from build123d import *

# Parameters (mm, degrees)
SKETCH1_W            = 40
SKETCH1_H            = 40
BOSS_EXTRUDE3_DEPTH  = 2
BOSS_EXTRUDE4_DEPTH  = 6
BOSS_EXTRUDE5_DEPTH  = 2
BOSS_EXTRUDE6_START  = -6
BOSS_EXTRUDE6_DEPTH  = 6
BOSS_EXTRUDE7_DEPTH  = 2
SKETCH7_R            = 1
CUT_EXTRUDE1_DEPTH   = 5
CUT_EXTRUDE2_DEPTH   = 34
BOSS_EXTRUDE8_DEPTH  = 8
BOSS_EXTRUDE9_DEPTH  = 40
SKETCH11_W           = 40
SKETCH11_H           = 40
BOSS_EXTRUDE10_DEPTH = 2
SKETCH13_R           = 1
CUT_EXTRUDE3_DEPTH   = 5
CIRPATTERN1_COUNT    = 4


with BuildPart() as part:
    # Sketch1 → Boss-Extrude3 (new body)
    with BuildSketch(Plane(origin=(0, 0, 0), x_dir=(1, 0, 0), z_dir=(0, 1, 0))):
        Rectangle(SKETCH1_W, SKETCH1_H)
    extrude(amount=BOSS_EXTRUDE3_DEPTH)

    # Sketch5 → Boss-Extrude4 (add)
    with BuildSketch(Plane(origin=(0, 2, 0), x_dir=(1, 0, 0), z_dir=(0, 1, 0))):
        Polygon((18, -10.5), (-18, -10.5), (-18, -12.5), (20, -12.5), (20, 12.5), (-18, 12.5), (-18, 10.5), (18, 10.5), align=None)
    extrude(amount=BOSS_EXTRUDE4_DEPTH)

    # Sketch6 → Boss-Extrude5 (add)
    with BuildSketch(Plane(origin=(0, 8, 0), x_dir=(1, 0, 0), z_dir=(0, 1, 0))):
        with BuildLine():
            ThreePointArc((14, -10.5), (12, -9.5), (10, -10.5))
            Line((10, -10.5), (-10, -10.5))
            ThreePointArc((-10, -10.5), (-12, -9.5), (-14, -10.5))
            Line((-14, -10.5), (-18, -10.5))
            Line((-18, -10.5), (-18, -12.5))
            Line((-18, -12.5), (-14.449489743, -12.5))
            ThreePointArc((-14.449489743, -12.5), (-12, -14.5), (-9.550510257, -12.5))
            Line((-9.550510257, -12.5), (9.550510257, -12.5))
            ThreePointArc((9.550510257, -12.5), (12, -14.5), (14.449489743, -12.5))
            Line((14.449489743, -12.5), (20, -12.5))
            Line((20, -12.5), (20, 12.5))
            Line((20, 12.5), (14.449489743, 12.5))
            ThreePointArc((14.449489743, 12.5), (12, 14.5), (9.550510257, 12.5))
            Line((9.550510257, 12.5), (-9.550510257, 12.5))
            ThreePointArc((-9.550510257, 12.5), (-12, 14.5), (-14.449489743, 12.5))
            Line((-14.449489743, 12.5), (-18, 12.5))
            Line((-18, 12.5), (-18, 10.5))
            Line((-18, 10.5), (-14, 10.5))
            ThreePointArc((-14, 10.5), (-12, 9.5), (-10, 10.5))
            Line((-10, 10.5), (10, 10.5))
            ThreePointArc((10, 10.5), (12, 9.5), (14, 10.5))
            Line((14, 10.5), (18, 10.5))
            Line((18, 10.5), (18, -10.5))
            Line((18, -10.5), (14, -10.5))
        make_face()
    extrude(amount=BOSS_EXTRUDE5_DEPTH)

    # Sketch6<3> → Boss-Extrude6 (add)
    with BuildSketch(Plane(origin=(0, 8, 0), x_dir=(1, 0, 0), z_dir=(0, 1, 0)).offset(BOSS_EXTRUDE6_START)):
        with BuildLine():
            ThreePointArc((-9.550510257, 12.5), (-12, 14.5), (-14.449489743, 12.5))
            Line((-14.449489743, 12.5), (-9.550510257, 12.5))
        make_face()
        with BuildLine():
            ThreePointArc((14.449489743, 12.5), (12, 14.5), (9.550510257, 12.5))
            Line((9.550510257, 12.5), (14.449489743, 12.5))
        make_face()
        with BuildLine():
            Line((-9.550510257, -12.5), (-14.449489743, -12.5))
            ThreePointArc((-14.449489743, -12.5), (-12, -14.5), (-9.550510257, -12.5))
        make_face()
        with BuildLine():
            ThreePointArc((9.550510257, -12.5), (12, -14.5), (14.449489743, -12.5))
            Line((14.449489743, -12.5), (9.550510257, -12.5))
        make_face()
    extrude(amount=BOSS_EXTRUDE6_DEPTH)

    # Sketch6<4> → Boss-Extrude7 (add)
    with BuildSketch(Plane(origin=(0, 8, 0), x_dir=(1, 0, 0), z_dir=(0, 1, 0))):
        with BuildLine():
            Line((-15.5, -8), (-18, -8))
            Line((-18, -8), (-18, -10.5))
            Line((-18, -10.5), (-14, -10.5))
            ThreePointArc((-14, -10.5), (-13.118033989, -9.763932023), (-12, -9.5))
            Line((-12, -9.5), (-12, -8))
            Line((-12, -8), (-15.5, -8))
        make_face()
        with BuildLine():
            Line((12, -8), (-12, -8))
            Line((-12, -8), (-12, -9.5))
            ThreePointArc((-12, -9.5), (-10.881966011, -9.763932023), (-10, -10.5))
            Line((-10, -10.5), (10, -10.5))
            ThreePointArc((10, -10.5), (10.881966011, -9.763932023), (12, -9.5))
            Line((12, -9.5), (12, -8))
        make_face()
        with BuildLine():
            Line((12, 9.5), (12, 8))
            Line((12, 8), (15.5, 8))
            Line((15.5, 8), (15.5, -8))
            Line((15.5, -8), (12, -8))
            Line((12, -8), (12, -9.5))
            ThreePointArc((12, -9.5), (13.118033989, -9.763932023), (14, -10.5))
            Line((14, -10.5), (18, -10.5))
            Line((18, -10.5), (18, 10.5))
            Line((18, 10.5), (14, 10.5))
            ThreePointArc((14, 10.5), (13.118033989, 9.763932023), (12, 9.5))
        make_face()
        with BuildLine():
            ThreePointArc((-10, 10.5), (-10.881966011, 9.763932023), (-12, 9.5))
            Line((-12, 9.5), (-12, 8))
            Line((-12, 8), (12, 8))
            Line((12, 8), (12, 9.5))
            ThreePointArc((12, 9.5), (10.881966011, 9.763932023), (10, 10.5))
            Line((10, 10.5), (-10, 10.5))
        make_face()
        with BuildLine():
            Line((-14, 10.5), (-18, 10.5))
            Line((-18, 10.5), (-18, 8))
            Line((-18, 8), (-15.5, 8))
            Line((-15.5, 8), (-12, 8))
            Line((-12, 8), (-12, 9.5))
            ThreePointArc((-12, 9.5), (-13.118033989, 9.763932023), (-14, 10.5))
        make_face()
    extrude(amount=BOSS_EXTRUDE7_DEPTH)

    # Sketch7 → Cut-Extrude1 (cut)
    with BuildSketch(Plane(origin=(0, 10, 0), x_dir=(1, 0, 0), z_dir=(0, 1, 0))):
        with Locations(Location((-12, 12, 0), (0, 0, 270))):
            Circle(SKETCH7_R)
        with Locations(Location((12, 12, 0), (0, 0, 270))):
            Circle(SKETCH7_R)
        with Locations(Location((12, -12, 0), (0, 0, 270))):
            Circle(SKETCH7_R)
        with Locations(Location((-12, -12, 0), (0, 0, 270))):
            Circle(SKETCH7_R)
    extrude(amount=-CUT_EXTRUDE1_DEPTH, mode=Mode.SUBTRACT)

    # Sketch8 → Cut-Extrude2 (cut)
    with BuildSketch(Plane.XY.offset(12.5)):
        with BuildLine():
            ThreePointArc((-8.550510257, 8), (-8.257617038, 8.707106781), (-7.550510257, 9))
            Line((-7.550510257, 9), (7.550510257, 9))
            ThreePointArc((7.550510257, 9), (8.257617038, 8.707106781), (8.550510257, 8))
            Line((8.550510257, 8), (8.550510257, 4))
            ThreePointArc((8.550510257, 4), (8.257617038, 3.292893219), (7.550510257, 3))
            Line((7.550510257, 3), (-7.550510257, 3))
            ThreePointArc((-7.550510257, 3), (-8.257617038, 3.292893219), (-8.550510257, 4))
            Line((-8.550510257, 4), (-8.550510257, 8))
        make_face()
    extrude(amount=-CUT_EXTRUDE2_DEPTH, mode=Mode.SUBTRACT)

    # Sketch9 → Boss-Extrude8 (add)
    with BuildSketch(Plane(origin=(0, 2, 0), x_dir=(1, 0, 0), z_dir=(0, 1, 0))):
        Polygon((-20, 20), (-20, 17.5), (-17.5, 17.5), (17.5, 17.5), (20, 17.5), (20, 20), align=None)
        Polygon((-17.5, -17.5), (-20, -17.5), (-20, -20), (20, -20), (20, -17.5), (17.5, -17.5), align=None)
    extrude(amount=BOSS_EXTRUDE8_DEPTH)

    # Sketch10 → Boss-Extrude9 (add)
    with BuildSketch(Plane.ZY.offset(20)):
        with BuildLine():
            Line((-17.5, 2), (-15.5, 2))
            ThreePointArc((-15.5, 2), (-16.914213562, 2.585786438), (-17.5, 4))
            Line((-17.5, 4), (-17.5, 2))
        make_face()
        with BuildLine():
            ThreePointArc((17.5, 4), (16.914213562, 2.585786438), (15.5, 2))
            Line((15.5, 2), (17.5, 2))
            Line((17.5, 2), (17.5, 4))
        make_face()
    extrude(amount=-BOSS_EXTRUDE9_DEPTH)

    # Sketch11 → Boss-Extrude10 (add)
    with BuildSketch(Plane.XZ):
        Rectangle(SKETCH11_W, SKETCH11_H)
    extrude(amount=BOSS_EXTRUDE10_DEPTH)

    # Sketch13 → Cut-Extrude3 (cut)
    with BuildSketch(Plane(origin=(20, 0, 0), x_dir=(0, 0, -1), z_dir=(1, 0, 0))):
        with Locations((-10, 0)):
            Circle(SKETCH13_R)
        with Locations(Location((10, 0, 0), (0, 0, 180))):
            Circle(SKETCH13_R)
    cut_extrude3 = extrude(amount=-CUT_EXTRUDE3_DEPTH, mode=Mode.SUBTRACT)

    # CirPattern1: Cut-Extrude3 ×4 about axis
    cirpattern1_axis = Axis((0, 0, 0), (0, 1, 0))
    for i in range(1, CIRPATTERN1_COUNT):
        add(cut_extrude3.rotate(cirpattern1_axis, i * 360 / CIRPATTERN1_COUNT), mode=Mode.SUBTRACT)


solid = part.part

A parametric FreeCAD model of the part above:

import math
import FreeCAD as App
import Part
import Sketcher
Q = App.Units.Quantity

doc = App.newDocument("Part")
body = doc.addObject("PartDesign::Body", "Body")

# Sketch on XZ plane
sketch1 = body.newObject("Sketcher::SketchObject", "Sketch")
sketch1.AttachmentSupport = (doc.getObject("XZ_Plane"), [""])
sketch1.MapMode = "FlatFace"
sketch1.addGeometry([
    Part.LineSegment(App.Vector(-20, -20, 0), App.Vector(-20, 20, 0)),
    Part.LineSegment(App.Vector(-20, 20, 0), App.Vector(20, 20, 0)),
    Part.LineSegment(App.Vector(20, 20, 0), App.Vector(20, -20, 0)),
    Part.LineSegment(App.Vector(20, -20, 0), App.Vector(-20, -20, 0)),
], False)
sketch1.addConstraint([
    Sketcher.Constraint("Coincident", 0, 2, 1, 1),
    Sketcher.Constraint("Coincident", 1, 2, 2, 1),
    Sketcher.Constraint("Coincident", 2, 2, 3, 1),
    Sketcher.Constraint("Coincident", 3, 2, 0, 1),
    Sketcher.Constraint("Vertical", 0),
    Sketcher.Constraint("Horizontal", 1),
    Sketcher.Constraint("Vertical", 2),
    Sketcher.Constraint("Horizontal", 3),
    Sketcher.Constraint("Symmetric", 0, 2, 2, 2, -1, 1),
    Sketcher.Constraint("Equal", 3, 0),
    Sketcher.Constraint("DistanceX", 1, 1, 1, 2, Q("40 mm")),
])
pad1 = body.newObject("PartDesign::Pad", "Pad")
pad1.Profile = sketch1
pad1.Length = 2
pad1.Reversed = True

# Sketch on XZ plane
sketch2 = body.newObject("Sketcher::SketchObject", "Sketch001")
sketch2.AttachmentSupport = (doc.getObject("XZ_Plane"), [""])
sketch2.MapMode = "FlatFace"
sketch2.AttachmentOffset = App.Placement(App.Vector(0, 0, -2), App.Rotation())
sketch2.addGeometry([
    Part.LineSegment(App.Vector(18, 10.5, 0), App.Vector(-18, 10.5, 0)),  # 0
    Part.LineSegment(App.Vector(-18, 10.5, 0), App.Vector(-18, 12.5, 0)),  # 1
    Part.LineSegment(App.Vector(-18, 12.5, 0), App.Vector(20, 12.5, 0)),  # 2
    Part.LineSegment(App.Vector(20, 12.5, 0), App.Vector(20, -12.5, 0)),  # 3
    Part.LineSegment(App.Vector(20, -12.5, 0), App.Vector(-18, -12.5, 0)),  # 4
    Part.LineSegment(App.Vector(-18, -12.5, 0), App.Vector(-18, -10.5, 0)),  # 5
    Part.LineSegment(App.Vector(-18, -10.5, 0), App.Vector(18, -10.5, 0)),  # 6
    Part.LineSegment(App.Vector(18, -10.5, 0), App.Vector(18, 10.5, 0)),  # 7
], False)
sketch2.addConstraint([
    Sketcher.Constraint("Coincident", 0, 2, 1, 1),
    Sketcher.Constraint("Coincident", 1, 2, 2, 1),
    Sketcher.Constraint("Coincident", 2, 2, 3, 1),
    Sketcher.Constraint("Coincident", 3, 2, 4, 1),
    Sketcher.Constraint("Coincident", 4, 2, 5, 1),
    Sketcher.Constraint("Coincident", 5, 2, 6, 1),
    Sketcher.Constraint("Coincident", 6, 2, 7, 1),
    Sketcher.Constraint("Coincident", 7, 2, 0, 1),
    Sketcher.Constraint("Horizontal", 0),
    Sketcher.Constraint("Vertical", 1),
    Sketcher.Constraint("Horizontal", 2),
    Sketcher.Constraint("Vertical", 3),
    Sketcher.Constraint("Horizontal", 4),
    Sketcher.Constraint("Vertical", 5),
    Sketcher.Constraint("Horizontal", 6),
    Sketcher.Constraint("Vertical", 7),
    Sketcher.Constraint("Symmetric", 0, 2, 6, 2, -1, 1),
    Sketcher.Constraint("Symmetric", 1, 2, 4, 2, -1),
    Sketcher.Constraint("DistanceX", 0, 2, 0, 1, Q("36 mm")),
    Sketcher.Constraint("DistanceX", 2, 1, 2, 2, Q("38 mm")),
    Sketcher.Constraint("DistanceY", 1, 1, 1, 2, Q("2 mm")),
    Sketcher.Constraint("DistanceY", 3, 2, 3, 1, Q("25 mm")),
])
pad2 = body.newObject("PartDesign::Pad", "Pad001")
pad2.Profile = sketch2
pad2.Length = 6
pad2.Reversed = True

# Sketch on XZ plane
sketch3 = body.newObject("Sketcher::SketchObject", "Sketch002")
sketch3.AttachmentSupport = (doc.getObject("XZ_Plane"), [""])
sketch3.MapMode = "FlatFace"
sketch3.AttachmentOffset = App.Placement(App.Vector(0, 0, -8), App.Rotation())
sketch3.addGeometry([
    Part.ArcOfCircle(Part.Circle(App.Vector(12, 12, 0), App.Vector(0, 0, 1), 2.5), math.radians(-143.130102), math.radians(-36.869898)),  # 0
    Part.LineSegment(App.Vector(10, 10.5, 0), App.Vector(-10, 10.5, 0)),  # 1
    Part.ArcOfCircle(Part.Circle(App.Vector(-12, 12, 0), App.Vector(0, 0, 1), 2.5), math.radians(-143.130102), math.radians(-36.869898)),  # 2
    Part.LineSegment(App.Vector(-14, 10.5, 0), App.Vector(-18, 10.5, 0)),  # 3
    Part.LineSegment(App.Vector(-18, 10.5, 0), App.Vector(-18, 12.5, 0)),  # 4
    Part.LineSegment(App.Vector(-18, 12.5, 0), App.Vector(-14.44949, 12.5, 0)),  # 5
    Part.ArcOfCircle(Part.Circle(App.Vector(-12, 12, 0), App.Vector(0, 0, 1), 2.5), math.radians(11.536959), math.radians(168.463041)),  # 6
    Part.LineSegment(App.Vector(-9.55051, 12.5, 0), App.Vector(9.55051, 12.5, 0)),  # 7
    Part.ArcOfCircle(Part.Circle(App.Vector(12, 12, 0), App.Vector(0, 0, 1), 2.5), math.radians(11.536959), math.radians(168.463041)),  # 8
    Part.LineSegment(App.Vector(14.44949, 12.5, 0), App.Vector(20, 12.5, 0)),  # 9
    Part.LineSegment(App.Vector(20, 12.5, 0), App.Vector(20, -12.5, 0)),  # 10
    Part.LineSegment(App.Vector(20, -12.5, 0), App.Vector(14.44949, -12.5, 0)),  # 11
    Part.ArcOfCircle(Part.Circle(App.Vector(12, -12, 0), App.Vector(0, 0, 1), 2.5), math.radians(-168.463041), math.radians(-11.536959)),  # 12
    Part.LineSegment(App.Vector(9.55051, -12.5, 0), App.Vector(-9.55051, -12.5, 0)),  # 13
    Part.ArcOfCircle(Part.Circle(App.Vector(-12, -12, 0), App.Vector(0, 0, 1), 2.5), math.radians(-168.463041), math.radians(-11.536959)),  # 14
    Part.LineSegment(App.Vector(-14.44949, -12.5, 0), App.Vector(-18, -12.5, 0)),  # 15
    Part.LineSegment(App.Vector(-18, -12.5, 0), App.Vector(-18, -10.5, 0)),  # 16
    Part.LineSegment(App.Vector(-18, -10.5, 0), App.Vector(-14, -10.5, 0)),  # 17
    Part.ArcOfCircle(Part.Circle(App.Vector(-12, -12, 0), App.Vector(0, 0, 1), 2.5), math.radians(36.869898), math.radians(143.130102)),  # 18
    Part.LineSegment(App.Vector(-10, -10.5, 0), App.Vector(10, -10.5, 0)),  # 19
    Part.ArcOfCircle(Part.Circle(App.Vector(12, -12, 0), App.Vector(0, 0, 1), 2.5), math.radians(36.869898), math.radians(143.130102)),  # 20
    Part.LineSegment(App.Vector(14, -10.5, 0), App.Vector(18, -10.5, 0)),  # 21
    Part.LineSegment(App.Vector(18, -10.5, 0), App.Vector(18, 10.5, 0)),  # 22
    Part.LineSegment(App.Vector(18, 10.5, 0), App.Vector(14, 10.5, 0)),  # 23
], False)
sketch3.addConstraint([
    Sketcher.Constraint("Coincident", 0, 1, 1, 1),
    Sketcher.Constraint("Coincident", 1, 2, 2, 2),
    Sketcher.Constraint("Coincident", 2, 1, 3, 1),
    Sketcher.Constraint("Coincident", 3, 2, 4, 1),
    Sketcher.Constraint("Coincident", 4, 2, 5, 1),
    Sketcher.Constraint("Coincident", 5, 2, 6, 2),
    Sketcher.Constraint("Coincident", 6, 1, 7, 1),
    Sketcher.Constraint("Coincident", 7, 2, 8, 2),
    Sketcher.Constraint("Coincident", 8, 1, 9, 1),
    Sketcher.Constraint("Coincident", 9, 2, 10, 1),
    Sketcher.Constraint("Coincident", 10, 2, 11, 1),
    Sketcher.Constraint("Coincident", 11, 2, 12, 2),
    Sketcher.Constraint("Coincident", 12, 1, 13, 1),
    Sketcher.Constraint("Coincident", 13, 2, 14, 2),
    Sketcher.Constraint("Coincident", 14, 1, 15, 1),
    Sketcher.Constraint("Coincident", 15, 2, 16, 1),
    Sketcher.Constraint("Coincident", 16, 2, 17, 1),
    Sketcher.Constraint("Coincident", 17, 2, 18, 2),
    Sketcher.Constraint("Coincident", 18, 1, 19, 1),
    Sketcher.Constraint("Coincident", 19, 2, 20, 2),
    Sketcher.Constraint("Coincident", 20, 1, 21, 1),
    Sketcher.Constraint("Coincident", 21, 2, 22, 1),
    Sketcher.Constraint("Coincident", 22, 2, 23, 1),
    Sketcher.Constraint("Coincident", 23, 2, 0, 2),
    Sketcher.Constraint("Horizontal", 1),
    Sketcher.Constraint("Horizontal", 3),
    Sketcher.Constraint("Vertical", 4),
    Sketcher.Constraint("Horizontal", 5),
    Sketcher.Constraint("Horizontal", 7),
    Sketcher.Constraint("Horizontal", 9),
    Sketcher.Constraint("Vertical", 10),
    Sketcher.Constraint("Horizontal", 11),
    Sketcher.Constraint("Horizontal", 13),
    Sketcher.Constraint("Horizontal", 15),
    Sketcher.Constraint("Vertical", 16),
    Sketcher.Constraint("Horizontal", 17),
    Sketcher.Constraint("Horizontal", 19),
    Sketcher.Constraint("Horizontal", 21),
    Sketcher.Constraint("Vertical", 22),
    Sketcher.Constraint("Horizontal", 23),
    Sketcher.Constraint("Coincident", 6, 3, 2, 3),
    Sketcher.Constraint("Coincident", 8, 3, 0, 3),
    Sketcher.Constraint("Coincident", 18, 3, 14, 3),
    Sketcher.Constraint("Coincident", 20, 3, 12, 3),
    Sketcher.Constraint("Equal", 0, 2),
    Sketcher.Constraint("Equal", 2, 6),
    Sketcher.Constraint("Equal", 6, 8),
    Sketcher.Constraint("Equal", 8, 12),
    Sketcher.Constraint("Equal", 12, 14),
    Sketcher.Constraint("Equal", 14, 18),
    Sketcher.Constraint("Equal", 18, 20),
    Sketcher.Constraint("Symmetric", 2, 3, 12, 3, -1, 1),
    Sketcher.Constraint("Symmetric", 0, 3, 14, 3, -1, 1),
    Sketcher.Constraint("Symmetric", 3, 2, 21, 2, -1, 1),
    Sketcher.Constraint("Symmetric", 16, 2, 22, 2, -1, 1),
    Sketcher.Constraint("Symmetric", 0, 3, 2, 3, -2),
    Sketcher.Constraint("Horizontal", 1, 2, 2, 1),
    Sketcher.Constraint("Horizontal", 5, 2, 6, 1),
    Sketcher.Constraint("Horizontal", 7, 2, 8, 1),
    Sketcher.Constraint("Horizontal", 11, 2, 12, 1),
    Sketcher.Constraint("Horizontal", 13, 2, 14, 1),
    Sketcher.Constraint("Horizontal", 17, 2, 18, 1),
    Sketcher.Constraint("Horizontal", 19, 2, 20, 1),
    Sketcher.Constraint("Vertical", 8, 1, 11, 2),
    Sketcher.Constraint("Radius", 0, Q("2.5 mm")),
    Sketcher.Constraint("DistanceX", 1, 2, 1, 1, Q("20 mm")),
    Sketcher.Constraint("DistanceX", 3, 2, 3, 1, Q("4 mm")),
    Sketcher.Constraint("DistanceY", 4, 1, 4, 2, Q("2 mm")),
    Sketcher.Constraint("DistanceY", 10, 2, 10, 1, Q("25 mm")),
    Sketcher.Constraint("DistanceX", -1, 1, 0, 3, Q("12 mm")),
    Sketcher.Constraint("DistanceX", -1, 1, 9, 2, Q("20 mm")),
])
pad3 = body.newObject("PartDesign::Pad", "Pad002")
pad3.Profile = sketch3
pad3.Length = 2
pad3.Reversed = True

# Sketch on XZ plane
sketch4 = body.newObject("Sketcher::SketchObject", "Sketch003")
sketch4.AttachmentSupport = (doc.getObject("XZ_Plane"), [""])
sketch4.MapMode = "FlatFace"
sketch4.AttachmentOffset = App.Placement(App.Vector(0, 0, -2), App.Rotation())
sketch4.addGeometry([
    Part.ArcOfCircle(Part.Circle(App.Vector(-12, -12, 0), App.Vector(0, 0, 1), 2.5), math.radians(-168.463041), math.radians(-11.536959)),  # 0
    Part.LineSegment(App.Vector(-14.44949, -12.5, 0), App.Vector(-9.55051, -12.5, 0)),  # 1
    Part.ArcOfCircle(Part.Circle(App.Vector(12, -12, 0), App.Vector(0, 0, 1), 2.5), math.radians(-168.463041), math.radians(-11.536959)),  # 2
    Part.LineSegment(App.Vector(9.55051, -12.5, 0), App.Vector(14.44949, -12.5, 0)),  # 3
    Part.LineSegment(App.Vector(-9.55051, 12.5, 0), App.Vector(-14.44949, 12.5, 0)),  # 4
    Part.ArcOfCircle(Part.Circle(App.Vector(-12, 12, 0), App.Vector(0, 0, 1), 2.5), math.radians(11.536959), math.radians(168.463041)),  # 5
    Part.ArcOfCircle(Part.Circle(App.Vector(12, 12, 0), App.Vector(0, 0, 1), 2.5), math.radians(11.536959), math.radians(168.463041)),  # 6
    Part.LineSegment(App.Vector(14.44949, 12.5, 0), App.Vector(9.55051, 12.5, 0)),  # 7
], False)
sketch4.addConstraint([
    Sketcher.Constraint("Coincident", 0, 1, 1, 1),
    Sketcher.Constraint("Coincident", 1, 2, 0, 2),
    Sketcher.Constraint("Coincident", 2, 1, 3, 1),
    Sketcher.Constraint("Coincident", 3, 2, 2, 2),
    Sketcher.Constraint("Coincident", 4, 1, 5, 1),
    Sketcher.Constraint("Coincident", 5, 2, 4, 2),
    Sketcher.Constraint("Coincident", 6, 1, 7, 1),
    Sketcher.Constraint("Coincident", 7, 2, 6, 2),
    Sketcher.Constraint("Horizontal", 1),
    Sketcher.Constraint("Horizontal", 3),
    Sketcher.Constraint("Horizontal", 4),
    Sketcher.Constraint("Horizontal", 7),
    Sketcher.Constraint("Equal", 0, 2),
    Sketcher.Constraint("Equal", 2, 5),
    Sketcher.Constraint("Equal", 5, 6),
    Sketcher.Constraint("Symmetric", 2, 3, 5, 3, -1, 1),
    Sketcher.Constraint("Symmetric", 0, 3, 6, 3, -1, 1),
    Sketcher.Constraint("Symmetric", 0, 3, 2, 3, -2),
    Sketcher.Constraint("Horizontal", 1, 2, 2, 1),
    Sketcher.Constraint("Horizontal", 5, 2, 6, 1),
    Sketcher.Constraint("Vertical", 1, 2, 4, 1),
    Sketcher.Constraint("Radius", 0, Q("2.5 mm")),
    Sketcher.Constraint("DistanceX", 0, 3, -1, 1, Q("12 mm")),
    Sketcher.Constraint("DistanceY", 0, 3, -1, 1, Q("12 mm")),
    Sketcher.Constraint("DistanceY", 1, 2, 4, 1, Q("25 mm")),
])
pad4 = body.newObject("PartDesign::Pad", "Pad003")
pad4.Profile = sketch4
pad4.Length = 6
pad4.Reversed = True

# Sketch on XZ plane
sketch5 = body.newObject("Sketcher::SketchObject", "Sketch004")
sketch5.AttachmentSupport = (doc.getObject("XZ_Plane"), [""])
sketch5.MapMode = "FlatFace"
sketch5.AttachmentOffset = App.Placement(App.Vector(0, 0, -8), App.Rotation())
sketch5.addGeometry([
    Part.LineSegment(App.Vector(-18, 8, 0), App.Vector(-18, 10.5, 0)),  # 0
    Part.LineSegment(App.Vector(-18, 10.5, 0), App.Vector(-14, 10.5, 0)),  # 1
    Part.ArcOfCircle(Part.Circle(App.Vector(-12, 12, 0), App.Vector(0, 0, 1), 2.5), math.radians(-143.130102), math.radians(-90)),  # 2
    Part.ArcOfCircle(Part.Circle(App.Vector(-12, 12, 0), App.Vector(0, 0, 1), 2.5), math.radians(-90), math.radians(-36.869898)),  # 3
    Part.LineSegment(App.Vector(-10, 10.5, 0), App.Vector(10, 10.5, 0)),  # 4
    Part.ArcOfCircle(Part.Circle(App.Vector(12, 12, 0), App.Vector(0, 0, 1), 2.5), math.radians(-143.130102), math.radians(-90)),  # 5
    Part.ArcOfCircle(Part.Circle(App.Vector(12, 12, 0), App.Vector(0, 0, 1), 2.5), math.radians(-90), math.radians(-36.869898)),  # 6
    Part.LineSegment(App.Vector(14, 10.5, 0), App.Vector(18, 10.5, 0)),  # 7
    Part.LineSegment(App.Vector(18, 10.5, 0), App.Vector(18, -10.5, 0)),  # 8
    Part.LineSegment(App.Vector(18, -10.5, 0), App.Vector(14, -10.5, 0)),  # 9
    Part.ArcOfCircle(Part.Circle(App.Vector(12, -12, 0), App.Vector(0, 0, 1), 2.5), math.radians(36.869898), math.radians(90)),  # 10
    Part.ArcOfCircle(Part.Circle(App.Vector(12, -12, 0), App.Vector(0, 0, 1), 2.5), math.radians(90), math.radians(143.130102)),  # 11
    Part.LineSegment(App.Vector(10, -10.5, 0), App.Vector(-10, -10.5, 0)),  # 12
    Part.ArcOfCircle(Part.Circle(App.Vector(-12, -12, 0), App.Vector(0, 0, 1), 2.5), math.radians(36.869898), math.radians(90)),  # 13
    Part.ArcOfCircle(Part.Circle(App.Vector(-12, -12, 0), App.Vector(0, 0, 1), 2.5), math.radians(90), math.radians(143.130102)),  # 14
    Part.LineSegment(App.Vector(-14, -10.5, 0), App.Vector(-18, -10.5, 0)),  # 15
    Part.LineSegment(App.Vector(-18, -10.5, 0), App.Vector(-18, -8, 0)),  # 16
    Part.LineSegment(App.Vector(-18, -8, 0), App.Vector(15.5, -8, 0)),  # 17
    Part.LineSegment(App.Vector(15.5, -8, 0), App.Vector(15.5, 8, 0)),  # 18
    Part.LineSegment(App.Vector(15.5, 8, 0), App.Vector(-18, 8, 0)),  # 19
], False)
sketch5.addConstraint([
    Sketcher.Constraint("Coincident", 0, 2, 1, 1),
    Sketcher.Constraint("Coincident", 1, 2, 2, 1),
    Sketcher.Constraint("Tangent", 2, 2, 3, 1),
    Sketcher.Constraint("Coincident", 3, 2, 4, 1),
    Sketcher.Constraint("Coincident", 4, 2, 5, 1),
    Sketcher.Constraint("Tangent", 5, 2, 6, 1),
    Sketcher.Constraint("Coincident", 6, 2, 7, 1),
    Sketcher.Constraint("Coincident", 7, 2, 8, 1),
    Sketcher.Constraint("Coincident", 8, 2, 9, 1),
    Sketcher.Constraint("Coincident", 9, 2, 10, 1),
    Sketcher.Constraint("Tangent", 10, 2, 11, 1),
    Sketcher.Constraint("Coincident", 11, 2, 12, 1),
    Sketcher.Constraint("Coincident", 12, 2, 13, 1),
    Sketcher.Constraint("Tangent", 13, 2, 14, 1),
    Sketcher.Constraint("Coincident", 14, 2, 15, 1),
    Sketcher.Constraint("Coincident", 15, 2, 16, 1),
    Sketcher.Constraint("Coincident", 16, 2, 17, 1),
    Sketcher.Constraint("Coincident", 17, 2, 18, 1),
    Sketcher.Constraint("Coincident", 18, 2, 19, 1),
    Sketcher.Constraint("Coincident", 19, 2, 0, 1),
    Sketcher.Constraint("Vertical", 0),
    Sketcher.Constraint("Horizontal", 1),
    Sketcher.Constraint("Horizontal", 4),
    Sketcher.Constraint("Horizontal", 7),
    Sketcher.Constraint("Vertical", 8),
    Sketcher.Constraint("Horizontal", 9),
    Sketcher.Constraint("Horizontal", 12),
    Sketcher.Constraint("Horizontal", 15),
    Sketcher.Constraint("Vertical", 16),
    Sketcher.Constraint("Horizontal", 17),
    Sketcher.Constraint("Vertical", 18),
    Sketcher.Constraint("Horizontal", 19),
    Sketcher.Constraint("Equal", 2, 3),
    Sketcher.Constraint("Equal", 3, 5),
    Sketcher.Constraint("Equal", 5, 6),
    Sketcher.Constraint("Equal", 6, 10),
    Sketcher.Constraint("Equal", 10, 11),
    Sketcher.Constraint("Equal", 11, 13),
    Sketcher.Constraint("Equal", 13, 14),
    Sketcher.Constraint("Symmetric", 2, 3, 10, 3, -1, 1),
    Sketcher.Constraint("Symmetric", 5, 3, 13, 3, -1, 1),
    Sketcher.Constraint("Symmetric", 0, 2, 8, 2, -1, 1),
    Sketcher.Constraint("Symmetric", 7, 2, 15, 2, -1, 1),
    Sketcher.Constraint("Symmetric", 2, 3, 5, 3, -2),
    Sketcher.Constraint("Horizontal", 1, 2, 3, 2),
    Sketcher.Constraint("Horizontal", 4, 2, 6, 2),
    Sketcher.Constraint("Horizontal", 9, 2, 11, 2),
    Sketcher.Constraint("Vertical", 14, 3, 2, 2),
    Sketcher.Constraint("Vertical", 11, 3, 5, 2),
    Sketcher.Constraint("Vertical", 5, 2, 10, 2),
    Sketcher.Constraint("Vertical", 2, 2, 13, 2),
    Sketcher.Constraint("Equal", 0, 16),
    Sketcher.Constraint("Radius", 2, Q("2.5 mm")),
    Sketcher.Constraint("DistanceX", 1, 1, 1, 2, Q("4 mm")),
    Sketcher.Constraint("DistanceX", 4, 1, 4, 2, Q("20 mm")),
    Sketcher.Constraint("DistanceY", 8, 2, 8, 1, Q("21 mm")),
    Sketcher.Constraint("DistanceY", 18, 1, 18, 2, Q("16 mm")),
    Sketcher.Constraint("DistanceX", 17, 1, 17, 2, Q("33.5 mm")),
    Sketcher.Constraint("DistanceX", 2, 3, -1, 1, Q("12 mm")),
])
pad5 = body.newObject("PartDesign::Pad", "Pad004")
pad5.Profile = sketch5
pad5.Length = 2
pad5.Reversed = True

# Sketch on XZ plane
sketch6 = body.newObject("Sketcher::SketchObject", "Sketch005")
sketch6.AttachmentSupport = (doc.getObject("XZ_Plane"), [""])
sketch6.MapMode = "FlatFace"
sketch6.AttachmentOffset = App.Placement(App.Vector(0, 0, -10), App.Rotation())
sketch6.addGeometry([
    Part.Circle(App.Vector(-12, -12, 0), App.Vector(0, 0, 1), 1),
    Part.Circle(App.Vector(12, -12, 0), App.Vector(0, 0, 1), 1),
    Part.Circle(App.Vector(12, 12, 0), App.Vector(0, 0, 1), 1),
    Part.Circle(App.Vector(-12, 12, 0), App.Vector(0, 0, 1), 1),
], False)
sketch6.addConstraint([
    Sketcher.Constraint("Equal", 0, 1),
    Sketcher.Constraint("Equal", 1, 2),
    Sketcher.Constraint("Equal", 2, 3),
    Sketcher.Constraint("Symmetric", 0, 3, 2, 3, -1, 1),
    Sketcher.Constraint("Symmetric", 1, 3, 3, 3, -1, 1),
    Sketcher.Constraint("Symmetric", 0, 3, 1, 3, -2),
    Sketcher.Constraint("Diameter", 0, Q("2 mm")),
    Sketcher.Constraint("DistanceX", 0, 3, -1, 1, Q("12 mm")),
    Sketcher.Constraint("DistanceY", 0, 3, -1, 1, Q("12 mm")),
])
pocket1 = body.newObject("PartDesign::Pocket", "Pocket")
pocket1.Profile = sketch6
pocket1.Length = 5
pocket1.Reversed = True

# Sketch on XY plane
sketch7 = body.newObject("Sketcher::SketchObject", "Sketch006")
sketch7.AttachmentSupport = (doc.getObject("XY_Plane"), [""])
sketch7.MapMode = "FlatFace"
sketch7.AttachmentOffset = App.Placement(App.Vector(0, 0, 12.5), App.Rotation())
sketch7.addGeometry([
    Part.ArcOfCircle(Part.Circle(App.Vector(-7.55051, 8, 0), App.Vector(0, 0, 1), 1), math.radians(90), math.radians(180)),  # 0
    Part.LineSegment(App.Vector(-8.55051, 8, 0), App.Vector(-8.55051, 4, 0)),  # 1
    Part.ArcOfCircle(Part.Circle(App.Vector(-7.55051, 4, 0), App.Vector(0, 0, 1), 1), math.radians(-180), math.radians(-90)),  # 2
    Part.LineSegment(App.Vector(-7.55051, 3, 0), App.Vector(7.55051, 3, 0)),  # 3
    Part.ArcOfCircle(Part.Circle(App.Vector(7.55051, 4, 0), App.Vector(0, 0, 1), 1), math.radians(-90), math.radians(0)),  # 4
    Part.LineSegment(App.Vector(8.55051, 4, 0), App.Vector(8.55051, 8, 0)),  # 5
    Part.ArcOfCircle(Part.Circle(App.Vector(7.55051, 8, 0), App.Vector(0, 0, 1), 1), math.radians(0), math.radians(90)),  # 6
    Part.LineSegment(App.Vector(7.55051, 9, 0), App.Vector(-7.55051, 9, 0)),  # 7
], False)
sketch7.addConstraint([
    Sketcher.Constraint("Tangent", 0, 2, 1, 1),
    Sketcher.Constraint("Tangent", 1, 2, 2, 1),
    Sketcher.Constraint("Tangent", 2, 2, 3, 1),
    Sketcher.Constraint("Tangent", 3, 2, 4, 1),
    Sketcher.Constraint("Tangent", 4, 2, 5, 1),
    Sketcher.Constraint("Tangent", 5, 2, 6, 1),
    Sketcher.Constraint("Tangent", 6, 2, 7, 1),
    Sketcher.Constraint("Tangent", 7, 2, 0, 1),
    Sketcher.Constraint("Vertical", 1),
    Sketcher.Constraint("Horizontal", 3),
    Sketcher.Constraint("Vertical", 5),
    Sketcher.Constraint("Horizontal", 7),
    Sketcher.Constraint("Equal", 0, 2),
    Sketcher.Constraint("Equal", 2, 4),
    Sketcher.Constraint("Equal", 4, 6),
    Sketcher.Constraint("Radius", 0, Q("1 mm")),
    Sketcher.Constraint("DistanceY", 1, 2, 1, 1, Q("4 mm")),
    Sketcher.Constraint("DistanceY", -1, 1, 0, 3, Q("8 mm")),
    Sketcher.Constraint("DistanceX", 3, 1, 3, 2, Q("15.101021 mm")),
    Sketcher.Constraint("DistanceX", 0, 3, -1, 1, Q("7.55051 mm")),
])
pocket2 = body.newObject("PartDesign::Pocket", "Pocket001")
pocket2.Profile = sketch7
pocket2.Length = 34

# Sketch on XZ plane
sketch8 = body.newObject("Sketcher::SketchObject", "Sketch007")
sketch8.AttachmentSupport = (doc.getObject("XZ_Plane"), [""])
sketch8.MapMode = "FlatFace"
sketch8.AttachmentOffset = App.Placement(App.Vector(0, 0, -2), App.Rotation())
sketch8.addGeometry([
    Part.LineSegment(App.Vector(-20, -20, 0), App.Vector(-20, -17.5, 0)),  # 0
    Part.LineSegment(App.Vector(-20, -17.5, 0), App.Vector(20, -17.5, 0)),  # 1
    Part.LineSegment(App.Vector(20, -17.5, 0), App.Vector(20, -20, 0)),  # 2
    Part.LineSegment(App.Vector(20, -20, 0), App.Vector(-20, -20, 0)),  # 3
    Part.LineSegment(App.Vector(-20, 17.5, 0), App.Vector(-20, 20, 0)),  # 4
    Part.LineSegment(App.Vector(-20, 20, 0), App.Vector(20, 20, 0)),  # 5
    Part.LineSegment(App.Vector(20, 20, 0), App.Vector(20, 17.5, 0)),  # 6
    Part.LineSegment(App.Vector(20, 17.5, 0), App.Vector(-20, 17.5, 0)),  # 7
], False)
sketch8.addConstraint([
    Sketcher.Constraint("Coincident", 0, 2, 1, 1),
    Sketcher.Constraint("Coincident", 1, 2, 2, 1),
    Sketcher.Constraint("Coincident", 2, 2, 3, 1),
    Sketcher.Constraint("Coincident", 3, 2, 0, 1),
    Sketcher.Constraint("Coincident", 4, 2, 5, 1),
    Sketcher.Constraint("Coincident", 5, 2, 6, 1),
    Sketcher.Constraint("Coincident", 6, 2, 7, 1),
    Sketcher.Constraint("Coincident", 7, 2, 4, 1),
    Sketcher.Constraint("Vertical", 0),
    Sketcher.Constraint("Horizontal", 1),
    Sketcher.Constraint("Vertical", 2),
    Sketcher.Constraint("Horizontal", 3),
    Sketcher.Constraint("Vertical", 4),
    Sketcher.Constraint("Horizontal", 5),
    Sketcher.Constraint("Vertical", 6),
    Sketcher.Constraint("Horizontal", 7),
    Sketcher.Constraint("Symmetric", 2, 2, 4, 2, -1, 1),
    Sketcher.Constraint("Symmetric", 0, 2, 6, 2, -1, 1),
    Sketcher.Constraint("Vertical", 3, 2, 4, 2),
    Sketcher.Constraint("DistanceX", 1, 1, 1, 2, Q("40 mm")),
    Sketcher.Constraint("DistanceY", 0, 1, 0, 2, Q("2.5 mm")),
    Sketcher.Constraint("DistanceY", 2, 2, -1, 1, Q("20 mm")),
])
pad6 = body.newObject("PartDesign::Pad", "Pad005")
pad6.Profile = sketch8
pad6.Length = 8
pad6.Reversed = True

# Sketch on YZ plane
sketch9 = body.newObject("Sketcher::SketchObject", "Sketch008")
sketch9.AttachmentSupport = (doc.getObject("YZ_Plane"), [""])
sketch9.MapMode = "FlatFace"
sketch9.AttachmentOffset = App.Placement(App.Vector(0, 0, -20), App.Rotation())
sketch9.addGeometry([
    Part.LineSegment(App.Vector(2, -17.5, 0), App.Vector(2, -15.5, 0)),  # 0
    Part.ArcOfCircle(Part.Circle(App.Vector(4, -15.5, 0), App.Vector(0, 0, 1), 2), math.radians(-180), math.radians(-90)),  # 1
    Part.LineSegment(App.Vector(4, -17.5, 0), App.Vector(2, -17.5, 0)),  # 2
    Part.ArcOfCircle(Part.Circle(App.Vector(4, 15.5, 0), App.Vector(0, 0, 1), 2), math.radians(90), math.radians(180)),  # 3
    Part.LineSegment(App.Vector(2, 15.5, 0), App.Vector(2, 17.5, 0)),  # 4
    Part.LineSegment(App.Vector(2, 17.5, 0), App.Vector(4, 17.5, 0)),  # 5
], False)
sketch9.addConstraint([
    Sketcher.Constraint("Tangent", 0, 2, 1, 1),
    Sketcher.Constraint("Tangent", 1, 2, 2, 1),
    Sketcher.Constraint("Coincident", 2, 2, 0, 1),
    Sketcher.Constraint("Tangent", 3, 2, 4, 1),
    Sketcher.Constraint("Coincident", 4, 2, 5, 1),
    Sketcher.Constraint("Tangent", 5, 2, 3, 1),
    Sketcher.Constraint("Vertical", 0),
    Sketcher.Constraint("Horizontal", 2),
    Sketcher.Constraint("Vertical", 4),
    Sketcher.Constraint("Horizontal", 5),
    Sketcher.Constraint("Equal", 1, 3),
    Sketcher.Constraint("Symmetric", 1, 3, 3, 3, -1),
    Sketcher.Constraint("Radius", 1, Q("2 mm")),
    Sketcher.Constraint("DistanceX", -1, 1, 1, 3, Q("4 mm")),
    Sketcher.Constraint("DistanceY", 1, 3, 3, 3, Q("31 mm")),
])
pad7 = body.newObject("PartDesign::Pad", "Pad006")
pad7.Profile = sketch9
pad7.Length = 40

# Sketch on XZ plane
sketch10 = body.newObject("Sketcher::SketchObject", "Sketch009")
sketch10.AttachmentSupport = (doc.getObject("XZ_Plane"), [""])
sketch10.MapMode = "FlatFace"
sketch10.addGeometry([
    Part.LineSegment(App.Vector(-20, 20, 0), App.Vector(-20, -20, 0)),
    Part.LineSegment(App.Vector(-20, -20, 0), App.Vector(20, -20, 0)),
    Part.LineSegment(App.Vector(20, -20, 0), App.Vector(20, 20, 0)),
    Part.LineSegment(App.Vector(20, 20, 0), App.Vector(-20, 20, 0)),
], False)
sketch10.addConstraint([
    Sketcher.Constraint("Coincident", 0, 2, 1, 1),
    Sketcher.Constraint("Coincident", 1, 2, 2, 1),
    Sketcher.Constraint("Coincident", 2, 2, 3, 1),
    Sketcher.Constraint("Coincident", 3, 2, 0, 1),
    Sketcher.Constraint("Vertical", 0),
    Sketcher.Constraint("Horizontal", 1),
    Sketcher.Constraint("Vertical", 2),
    Sketcher.Constraint("Horizontal", 3),
    Sketcher.Constraint("Symmetric", 0, 2, 2, 2, -1, 1),
    Sketcher.Constraint("Equal", 3, 0),
    Sketcher.Constraint("DistanceX", 1, 1, 1, 2, Q("40 mm")),
])
pad8 = body.newObject("PartDesign::Pad", "Pad007")
pad8.Profile = sketch10
pad8.Length = 2

# Sketch on YZ plane
sketch11 = body.newObject("Sketcher::SketchObject", "Sketch010")
sketch11.AttachmentSupport = (doc.getObject("YZ_Plane"), [""])
sketch11.MapMode = "FlatFace"
sketch11.AttachmentOffset = App.Placement(App.Vector(0, 0, 20), App.Rotation())
sketch11.addGeometry([
    Part.Circle(App.Vector(0, 10, 0), App.Vector(0, 0, 1), 1),
    Part.Circle(App.Vector(0, -10, 0), App.Vector(0, 0, 1), 1),
], False)
sketch11.addConstraint([
    Sketcher.Constraint("Equal", 0, 1),
    Sketcher.Constraint("Symmetric", 0, 3, 1, 3, -1, 1),
    Sketcher.Constraint("PointOnObject", 0, 3, -2),
    Sketcher.Constraint("Diameter", 0, Q("2 mm")),
    Sketcher.Constraint("DistanceY", -1, 1, 0, 3, Q("10 mm")),
])
pocket3 = body.newObject("PartDesign::Pocket", "Pocket002")
pocket3.Profile = sketch11
pocket3.Length = 5
doc.recompute()

polarpattern = body.newObject("PartDesign::PolarPattern", "PolarPattern")
polarpattern.Originals = [pocket3]
polarpattern.Axis = (doc.getObject("Y_Axis"), [""])
polarpattern.Angle = 360
polarpattern.Occurrences = 4
body.Tip = polarpattern

doc.recompute()
